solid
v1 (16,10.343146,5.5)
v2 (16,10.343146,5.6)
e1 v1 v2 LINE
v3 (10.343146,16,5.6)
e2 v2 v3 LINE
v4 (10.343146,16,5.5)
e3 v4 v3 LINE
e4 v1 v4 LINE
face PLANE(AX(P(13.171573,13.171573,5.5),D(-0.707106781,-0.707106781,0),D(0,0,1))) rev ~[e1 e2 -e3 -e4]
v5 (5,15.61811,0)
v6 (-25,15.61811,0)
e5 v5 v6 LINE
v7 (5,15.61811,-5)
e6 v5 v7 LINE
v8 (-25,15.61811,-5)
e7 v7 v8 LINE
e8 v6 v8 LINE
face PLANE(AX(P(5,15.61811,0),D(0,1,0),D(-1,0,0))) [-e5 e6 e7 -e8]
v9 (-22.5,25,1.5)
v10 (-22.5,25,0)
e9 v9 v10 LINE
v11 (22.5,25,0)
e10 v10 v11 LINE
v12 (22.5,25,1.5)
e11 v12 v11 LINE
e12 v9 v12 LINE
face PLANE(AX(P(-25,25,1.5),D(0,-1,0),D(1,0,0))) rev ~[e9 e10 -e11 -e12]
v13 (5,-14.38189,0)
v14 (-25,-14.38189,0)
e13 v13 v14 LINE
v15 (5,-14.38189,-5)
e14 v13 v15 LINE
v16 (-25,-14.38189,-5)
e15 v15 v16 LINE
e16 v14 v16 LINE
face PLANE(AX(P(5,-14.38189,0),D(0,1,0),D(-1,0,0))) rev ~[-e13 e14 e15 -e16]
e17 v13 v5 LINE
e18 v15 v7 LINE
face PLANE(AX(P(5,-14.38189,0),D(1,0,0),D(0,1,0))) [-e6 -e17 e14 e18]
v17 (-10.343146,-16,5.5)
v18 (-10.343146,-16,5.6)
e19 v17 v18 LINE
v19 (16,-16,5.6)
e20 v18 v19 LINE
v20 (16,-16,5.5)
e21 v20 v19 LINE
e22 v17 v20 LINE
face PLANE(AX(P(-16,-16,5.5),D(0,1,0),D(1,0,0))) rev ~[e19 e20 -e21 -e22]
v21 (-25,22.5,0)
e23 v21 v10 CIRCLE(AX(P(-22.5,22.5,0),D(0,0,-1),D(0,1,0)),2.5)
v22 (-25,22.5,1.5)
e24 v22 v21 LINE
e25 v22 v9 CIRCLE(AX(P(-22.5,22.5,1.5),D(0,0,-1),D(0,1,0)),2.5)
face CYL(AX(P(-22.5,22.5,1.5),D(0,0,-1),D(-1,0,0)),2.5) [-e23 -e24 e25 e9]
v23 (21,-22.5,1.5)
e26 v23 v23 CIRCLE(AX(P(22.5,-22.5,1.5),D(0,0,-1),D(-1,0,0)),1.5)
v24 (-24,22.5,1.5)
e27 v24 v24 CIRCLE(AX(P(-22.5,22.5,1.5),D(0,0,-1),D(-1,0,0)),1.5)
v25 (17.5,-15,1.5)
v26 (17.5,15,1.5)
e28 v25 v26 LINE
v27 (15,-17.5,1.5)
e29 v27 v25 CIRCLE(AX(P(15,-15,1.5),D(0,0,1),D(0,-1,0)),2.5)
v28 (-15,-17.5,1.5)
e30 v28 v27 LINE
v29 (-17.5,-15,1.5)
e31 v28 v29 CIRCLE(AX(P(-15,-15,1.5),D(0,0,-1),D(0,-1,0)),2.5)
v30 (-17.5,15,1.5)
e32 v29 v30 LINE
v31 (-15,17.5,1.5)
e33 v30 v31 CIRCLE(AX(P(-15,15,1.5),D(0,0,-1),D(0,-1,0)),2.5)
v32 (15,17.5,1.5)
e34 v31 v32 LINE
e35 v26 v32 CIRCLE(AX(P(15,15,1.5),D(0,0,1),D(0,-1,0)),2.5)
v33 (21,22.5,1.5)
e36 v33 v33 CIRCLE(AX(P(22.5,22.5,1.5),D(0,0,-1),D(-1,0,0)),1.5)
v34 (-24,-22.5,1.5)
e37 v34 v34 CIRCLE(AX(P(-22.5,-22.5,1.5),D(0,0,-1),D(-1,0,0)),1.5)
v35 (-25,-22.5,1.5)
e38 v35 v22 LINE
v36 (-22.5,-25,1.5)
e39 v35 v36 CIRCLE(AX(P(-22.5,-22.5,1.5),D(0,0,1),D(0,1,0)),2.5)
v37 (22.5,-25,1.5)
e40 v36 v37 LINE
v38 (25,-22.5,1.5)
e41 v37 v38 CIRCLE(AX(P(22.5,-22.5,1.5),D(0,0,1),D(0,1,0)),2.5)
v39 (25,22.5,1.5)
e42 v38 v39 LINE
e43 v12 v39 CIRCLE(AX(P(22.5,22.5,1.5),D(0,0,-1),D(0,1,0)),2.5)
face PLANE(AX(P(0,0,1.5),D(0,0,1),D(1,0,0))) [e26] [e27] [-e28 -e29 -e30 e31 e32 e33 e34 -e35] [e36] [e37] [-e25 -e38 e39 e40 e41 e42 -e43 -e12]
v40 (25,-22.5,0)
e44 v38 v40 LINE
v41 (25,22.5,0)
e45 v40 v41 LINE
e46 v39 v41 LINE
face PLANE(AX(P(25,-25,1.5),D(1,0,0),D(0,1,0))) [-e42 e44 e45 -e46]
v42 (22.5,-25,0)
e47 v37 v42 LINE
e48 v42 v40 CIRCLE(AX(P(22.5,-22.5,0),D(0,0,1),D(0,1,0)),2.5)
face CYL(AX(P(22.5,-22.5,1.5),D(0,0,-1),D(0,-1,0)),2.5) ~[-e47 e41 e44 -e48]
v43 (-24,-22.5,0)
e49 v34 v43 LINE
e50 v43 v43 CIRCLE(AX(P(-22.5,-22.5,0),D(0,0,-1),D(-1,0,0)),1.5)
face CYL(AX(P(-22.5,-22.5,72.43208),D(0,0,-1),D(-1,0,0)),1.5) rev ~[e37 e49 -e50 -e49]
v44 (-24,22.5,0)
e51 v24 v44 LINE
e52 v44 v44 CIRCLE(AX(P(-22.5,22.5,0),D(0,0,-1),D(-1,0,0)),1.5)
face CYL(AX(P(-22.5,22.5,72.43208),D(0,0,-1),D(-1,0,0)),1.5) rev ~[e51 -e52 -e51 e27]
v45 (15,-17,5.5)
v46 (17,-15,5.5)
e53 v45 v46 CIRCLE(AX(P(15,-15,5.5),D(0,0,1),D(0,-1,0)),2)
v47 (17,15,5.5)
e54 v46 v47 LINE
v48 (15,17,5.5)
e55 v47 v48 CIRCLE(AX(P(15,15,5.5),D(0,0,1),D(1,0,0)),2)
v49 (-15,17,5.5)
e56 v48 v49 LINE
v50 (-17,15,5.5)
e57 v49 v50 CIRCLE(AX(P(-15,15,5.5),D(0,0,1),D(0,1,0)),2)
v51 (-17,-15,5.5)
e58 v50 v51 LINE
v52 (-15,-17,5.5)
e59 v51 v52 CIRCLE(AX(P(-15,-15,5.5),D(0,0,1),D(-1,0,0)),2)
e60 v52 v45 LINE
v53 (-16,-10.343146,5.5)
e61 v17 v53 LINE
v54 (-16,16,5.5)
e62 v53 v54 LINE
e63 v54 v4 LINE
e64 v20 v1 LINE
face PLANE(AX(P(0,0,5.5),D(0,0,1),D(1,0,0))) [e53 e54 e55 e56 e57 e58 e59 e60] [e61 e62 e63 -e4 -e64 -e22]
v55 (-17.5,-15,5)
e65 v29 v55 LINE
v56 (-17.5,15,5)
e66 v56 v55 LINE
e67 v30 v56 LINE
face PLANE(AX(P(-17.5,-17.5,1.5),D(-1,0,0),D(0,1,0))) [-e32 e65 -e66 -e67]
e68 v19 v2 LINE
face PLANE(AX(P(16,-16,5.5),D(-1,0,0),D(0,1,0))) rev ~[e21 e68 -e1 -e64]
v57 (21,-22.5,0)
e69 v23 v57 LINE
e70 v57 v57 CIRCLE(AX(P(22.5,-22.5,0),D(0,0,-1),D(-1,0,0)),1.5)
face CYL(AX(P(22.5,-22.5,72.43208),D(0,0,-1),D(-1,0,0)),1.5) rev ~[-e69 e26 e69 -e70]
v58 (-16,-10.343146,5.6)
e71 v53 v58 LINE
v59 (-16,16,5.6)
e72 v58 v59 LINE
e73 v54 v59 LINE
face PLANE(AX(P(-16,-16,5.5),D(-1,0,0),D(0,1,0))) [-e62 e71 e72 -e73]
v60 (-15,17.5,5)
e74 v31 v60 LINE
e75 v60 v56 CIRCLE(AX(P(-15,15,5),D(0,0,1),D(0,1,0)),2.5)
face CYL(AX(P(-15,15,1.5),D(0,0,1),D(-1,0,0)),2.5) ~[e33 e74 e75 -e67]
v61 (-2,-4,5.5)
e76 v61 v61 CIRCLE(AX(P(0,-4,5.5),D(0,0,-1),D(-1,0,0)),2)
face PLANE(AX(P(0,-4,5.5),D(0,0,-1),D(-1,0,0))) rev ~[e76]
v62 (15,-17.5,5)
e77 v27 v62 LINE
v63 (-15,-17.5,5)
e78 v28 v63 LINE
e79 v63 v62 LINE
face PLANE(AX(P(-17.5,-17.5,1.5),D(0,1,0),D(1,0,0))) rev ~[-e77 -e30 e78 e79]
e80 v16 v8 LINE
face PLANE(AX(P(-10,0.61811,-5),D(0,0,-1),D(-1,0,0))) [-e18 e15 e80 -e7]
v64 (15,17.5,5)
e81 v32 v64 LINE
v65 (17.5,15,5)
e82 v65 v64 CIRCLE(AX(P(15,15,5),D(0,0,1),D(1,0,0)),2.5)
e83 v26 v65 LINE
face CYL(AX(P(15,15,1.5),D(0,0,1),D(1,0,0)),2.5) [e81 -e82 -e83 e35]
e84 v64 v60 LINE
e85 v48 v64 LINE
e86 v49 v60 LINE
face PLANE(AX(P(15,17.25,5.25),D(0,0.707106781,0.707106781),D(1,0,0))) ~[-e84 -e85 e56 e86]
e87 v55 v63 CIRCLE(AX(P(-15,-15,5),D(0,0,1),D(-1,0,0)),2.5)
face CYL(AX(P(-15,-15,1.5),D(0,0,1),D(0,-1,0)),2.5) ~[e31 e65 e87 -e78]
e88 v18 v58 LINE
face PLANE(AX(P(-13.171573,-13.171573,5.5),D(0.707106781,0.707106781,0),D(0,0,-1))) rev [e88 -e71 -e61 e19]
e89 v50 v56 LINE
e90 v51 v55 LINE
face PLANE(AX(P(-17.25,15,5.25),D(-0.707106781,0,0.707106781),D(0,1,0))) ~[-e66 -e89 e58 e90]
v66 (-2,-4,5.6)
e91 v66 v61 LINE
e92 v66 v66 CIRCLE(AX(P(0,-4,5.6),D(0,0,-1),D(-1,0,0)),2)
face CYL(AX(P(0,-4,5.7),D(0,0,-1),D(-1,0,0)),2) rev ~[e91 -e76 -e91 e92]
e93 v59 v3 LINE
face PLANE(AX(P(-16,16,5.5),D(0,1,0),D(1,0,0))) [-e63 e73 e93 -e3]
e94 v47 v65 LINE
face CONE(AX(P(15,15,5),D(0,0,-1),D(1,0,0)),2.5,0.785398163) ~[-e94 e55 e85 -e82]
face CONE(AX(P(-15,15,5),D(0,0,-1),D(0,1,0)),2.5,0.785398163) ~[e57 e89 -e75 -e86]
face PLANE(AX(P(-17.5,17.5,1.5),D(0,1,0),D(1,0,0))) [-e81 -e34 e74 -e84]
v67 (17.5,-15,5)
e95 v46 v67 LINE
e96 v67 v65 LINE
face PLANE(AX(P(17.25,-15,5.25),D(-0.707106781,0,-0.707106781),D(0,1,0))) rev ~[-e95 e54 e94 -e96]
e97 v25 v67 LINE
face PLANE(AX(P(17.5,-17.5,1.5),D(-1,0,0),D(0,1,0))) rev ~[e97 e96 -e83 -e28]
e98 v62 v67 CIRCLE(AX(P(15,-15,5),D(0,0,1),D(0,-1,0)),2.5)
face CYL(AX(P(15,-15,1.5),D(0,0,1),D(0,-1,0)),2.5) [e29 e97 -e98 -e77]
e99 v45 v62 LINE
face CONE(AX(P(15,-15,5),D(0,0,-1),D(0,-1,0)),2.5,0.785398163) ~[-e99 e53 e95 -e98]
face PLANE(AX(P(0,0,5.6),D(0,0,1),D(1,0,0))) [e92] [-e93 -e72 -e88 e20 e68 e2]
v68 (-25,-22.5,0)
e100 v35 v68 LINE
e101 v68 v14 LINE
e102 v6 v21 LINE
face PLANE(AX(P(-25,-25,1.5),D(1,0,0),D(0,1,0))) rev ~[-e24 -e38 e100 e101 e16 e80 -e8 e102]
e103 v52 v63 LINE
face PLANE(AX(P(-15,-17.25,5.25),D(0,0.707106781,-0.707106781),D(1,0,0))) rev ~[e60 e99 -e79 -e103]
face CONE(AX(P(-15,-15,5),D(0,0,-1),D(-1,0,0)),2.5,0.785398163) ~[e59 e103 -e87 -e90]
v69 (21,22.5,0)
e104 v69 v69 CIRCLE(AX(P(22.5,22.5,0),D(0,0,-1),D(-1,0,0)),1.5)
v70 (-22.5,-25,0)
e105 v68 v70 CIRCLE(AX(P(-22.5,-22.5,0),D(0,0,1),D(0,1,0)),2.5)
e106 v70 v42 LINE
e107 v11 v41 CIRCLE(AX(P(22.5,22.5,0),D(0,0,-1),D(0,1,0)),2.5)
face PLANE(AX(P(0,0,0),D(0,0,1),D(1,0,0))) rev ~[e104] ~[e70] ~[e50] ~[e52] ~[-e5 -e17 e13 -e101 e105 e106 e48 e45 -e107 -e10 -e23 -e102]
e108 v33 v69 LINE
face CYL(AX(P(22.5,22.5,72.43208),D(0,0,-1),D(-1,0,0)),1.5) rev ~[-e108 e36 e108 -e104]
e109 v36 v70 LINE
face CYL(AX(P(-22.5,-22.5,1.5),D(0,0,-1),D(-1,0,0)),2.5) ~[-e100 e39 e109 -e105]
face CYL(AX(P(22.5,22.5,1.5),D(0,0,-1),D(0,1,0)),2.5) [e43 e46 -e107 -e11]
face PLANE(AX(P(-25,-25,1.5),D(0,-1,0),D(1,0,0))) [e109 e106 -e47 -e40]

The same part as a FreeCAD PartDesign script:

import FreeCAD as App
import Part
import Sketcher
from FreeCAD import Vector


def edges_at(feature, points):
    """Names of the edges that pass closest to the given points."""
    edges = feature.Shape.Edges
    near = lambda p: min(range(len(edges)), key=lambda i: edges[i].distToShape(Part.Vertex(*p))[0])
    return sorted({f"Edge{near(p) + 1}" for p in points})


def add_polygon(sketch, points):
    """Adds a closed chain of lines whose ends are joined by coincident constraints."""
    first, n = sketch.GeometryCount, len(points)
    for a, b in zip(points, points[1:] + points[:1]):
        sketch.addGeometry(Part.LineSegment(App.Vector(*a, 0), App.Vector(*b, 0)), False)
    for i in range(n):
        sketch.addConstraint(Sketcher.Constraint("Coincident", first + i, 2, first + (i + 1) % n, 1))

doc = App.newDocument("Part")
body = doc.addObject("PartDesign::Body", "Body")

# Sketch on XY plane
sketch1 = body.newObject("Sketcher::SketchObject", "Sketch")
sketch1.AttachmentSupport = (doc.getObject("XY_Plane"), [""])
sketch1.MapMode = "FlatFace"
sketch1.AttachmentOffset = App.Placement(Vector(0, 0, 1.5), App.Rotation())
add_polygon(sketch1, [(-25, 25), (-25, -25), (25, -25), (25, 25)])  # lines 0-3
sketch1.addConstraint([
    Sketcher.Constraint("Vertical", 0),
    Sketcher.Constraint("Horizontal", 1),
    Sketcher.Constraint("Vertical", 2),
    Sketcher.Constraint("Horizontal", 3),
    Sketcher.Constraint("Symmetric", 0, 2, 2, 2, -1, 1),
    Sketcher.Constraint("Equal", 3, 0),
    Sketcher.Constraint("DistanceX", 1, 1, 1, 2, 50.0),
])
pad1 = body.newObject("PartDesign::Pad", "Pad")
pad1.Profile = sketch1
pad1.Length = 1.5
pad1.Reversed = True

# Sketch on XY plane
sketch2 = body.newObject("Sketcher::SketchObject", "Sketch001")
sketch2.AttachmentSupport = (doc.getObject("XY_Plane"), [""])
sketch2.MapMode = "FlatFace"
sketch2.AttachmentOffset = App.Placement(Vector(0, 0, 1.5), App.Rotation())
add_polygon(sketch2, [(-17.5, 17.5), (-17.5, -17.5), (17.5, -17.5), (17.5, 17.5)])  # lines 0-3
sketch2.addConstraint([
    Sketcher.Constraint("Vertical", 0),
    Sketcher.Constraint("Horizontal", 1),
    Sketcher.Constraint("Vertical", 2),
    Sketcher.Constraint("Horizontal", 3),
    Sketcher.Constraint("Symmetric", 0, 2, 2, 2, -1, 1),
    Sketcher.Constraint("Equal", 3, 0),
    Sketcher.Constraint("DistanceX", 1, 1, 1, 2, 35.0),
])
pad2 = body.newObject("PartDesign::Pad", "Pad001")
pad2.Profile = sketch2
pad2.Length = 4

# Sketch on XY plane
sketch3 = body.newObject("Sketcher::SketchObject", "Sketch002")
sketch3.AttachmentSupport = (doc.getObject("XY_Plane"), [""])
sketch3.MapMode = "FlatFace"
sketch3.AttachmentOffset = App.Placement(Vector(0, 0, 5.5), App.Rotation())
add_polygon(sketch3, [(-16, 16), (-16, -16), (16, -16), (16, 16)])  # lines 0-3
sketch3.addConstraint([
    Sketcher.Constraint("Vertical", 0),
    Sketcher.Constraint("Horizontal", 1),
    Sketcher.Constraint("Vertical", 2),
    Sketcher.Constraint("Horizontal", 3),
    Sketcher.Constraint("Symmetric", 0, 2, 2, 2, -1, 1),
    Sketcher.Constraint("Equal", 3, 0),
    Sketcher.Constraint("DistanceX", 1, 1, 1, 2, 32.0),
])
pad3 = body.newObject("PartDesign::Pad", "Pad002")
pad3.Profile = sketch3
pad3.Length = 0.1

# Sketch on XY plane
sketch4 = body.newObject("Sketcher::SketchObject", "Sketch003")
sketch4.AttachmentSupport = (doc.getObject("XY_Plane"), [""])
sketch4.MapMode = "FlatFace"
sketch4.AttachmentOffset = App.Placement(Vector(0, 0, 1.5), App.Rotation())
sketch4.addGeometry([
    Part.Circle(Vector(22.5, -22.5, 0), Vector(0, 0, 1), 1.5),
    Part.Circle(Vector(-22.5, 22.5, 0), Vector(0, 0, 1), 1.5),
    Part.Circle(Vector(22.5, 22.5, 0), Vector(0, 0, 1), 1.5),
    Part.Circle(Vector(-22.5, -22.5, 0), Vector(0, 0, 1), 1.5),
], False)
sketch4.addConstraint([
    Sketcher.Constraint("Equal", 0, 1),
    Sketcher.Constraint("Equal", 1, 2),
    Sketcher.Constraint("Equal", 2, 3),
    Sketcher.Constraint("Symmetric", 0, 3, 1, 3, -1, 1),
    Sketcher.Constraint("Symmetric", 2, 3, 3, 3, -1, 1),
    Sketcher.Constraint("Symmetric", 1, 3, 2, 3, -2),
    Sketcher.Constraint("Diameter", 0, 3.0),
    Sketcher.Constraint("DistanceX", 1, 3, 0, 3, 45.0),
    Sketcher.Constraint("DistanceY", 0, 3, 1, 3, 45.0),
])
doc.recompute()
hole = body.newObject("PartDesign::Hole", "Hole")
hole.Profile = sketch4
hole.ThreadType = "None"
hole.Diameter = 3
hole.DepthType = "ThroughAll"

# Sketch on XY plane
sketch5 = body.newObject("Sketcher::SketchObject", "Sketch004")
sketch5.AttachmentSupport = (doc.getObject("XY_Plane"), [""])
sketch5.MapMode = "FlatFace"
sketch5.AttachmentOffset = App.Placement(Vector(0, 0, 5.6), App.Rotation())
sketch5.addGeometry(Part.Circle(Vector(0, -4, 0), Vector(0, 0, 1), 2), False)
sketch5.addConstraint([
    Sketcher.Constraint("PointOnObject", 0, 3, -2),
    Sketcher.Constraint("Diameter", 0, 4.0),
    Sketcher.Constraint("DistanceY", 0, 3, -1, 1, 4.0),
])
doc.recompute()
hole2 = body.newObject("PartDesign::Hole", "Hole001")
hole2.Profile = sketch5
hole2.ThreadType = "None"
hole2.Diameter = 4
hole2.DepthType = "Dimension"
hole2.Depth = 0.1
hole2.DrillPoint = "Flat"
doc.recompute()

fillet = body.newObject("PartDesign::Fillet", "Fillet")
fillet.Base = (hole2, edges_at(hole2, [
    (-17.5, 17.5, 3.5),
    (-17.5, -17.5, 3.5),
    (17.5, -17.5, 3.5),
    (17.5, 17.5, 3.5),
    (25, -25, 0.75),
    (-25, -25, 0.75),
    (-25, 25, 0.75),
    (25, 25, 0.75),
]))
fillet.Radius = 2.5
doc.recompute()

chamfer = body.newObject("PartDesign::Chamfer", "Chamfer")
chamfer.Base = (fillet, edges_at(fillet, [(16, 16, 5.55), (-16, -16, 5.55)]))
chamfer.Size = 5.656854
doc.recompute()

chamfer2 = body.newObject("PartDesign::Chamfer", "Chamfer001")
chamfer2.Base = (chamfer, edges_at(chamfer, [
    (17.5, 0, 5.5),
    (0, -17.5, 5.5),
    (-17.5, 0, 5.5),
    (0, 17.5, 5.5),
    (-16.768, 16.768, 5.5),
    (-16.768, -16.768, 5.5),
    (16.768, 16.768, 5.5),
    (16.768, -16.768, 5.5),
]))
chamfer2.Size = 0.5

# Sketch on XY plane
sketch6 = body.newObject("Sketcher::SketchObject", "Sketch005")
sketch6.AttachmentSupport = (doc.getObject("XY_Plane"), [""])
sketch6.MapMode = "FlatFace"
add_polygon(sketch6, [(5, 15.61811), (5, -14.38189), (-25, -14.38189), (-25, 15.61811)])  # lines 0-3
sketch6.addConstraint([
    Sketcher.Constraint("Vertical", 0),
    Sketcher.Constraint("Horizontal", 1),
    Sketcher.Constraint("Vertical", 2),
    Sketcher.Constraint("Horizontal", 3),
    Sketcher.Constraint("Equal", 3, 0),
    Sketcher.Constraint("DistanceX", 1, 2, 1, 1, 30.0),
    Sketcher.Constraint("DistanceX", -1, 1, 0, 2, 5.0),
    Sketcher.Constraint("DistanceY", 0, 2, -1, 1, 14.38189),
])
pad4 = body.newObject("PartDesign::Pad", "Pad003")
pad4.Profile = sketch6
pad4.Length = 5
pad4.Reversed = True

doc.recompute()
